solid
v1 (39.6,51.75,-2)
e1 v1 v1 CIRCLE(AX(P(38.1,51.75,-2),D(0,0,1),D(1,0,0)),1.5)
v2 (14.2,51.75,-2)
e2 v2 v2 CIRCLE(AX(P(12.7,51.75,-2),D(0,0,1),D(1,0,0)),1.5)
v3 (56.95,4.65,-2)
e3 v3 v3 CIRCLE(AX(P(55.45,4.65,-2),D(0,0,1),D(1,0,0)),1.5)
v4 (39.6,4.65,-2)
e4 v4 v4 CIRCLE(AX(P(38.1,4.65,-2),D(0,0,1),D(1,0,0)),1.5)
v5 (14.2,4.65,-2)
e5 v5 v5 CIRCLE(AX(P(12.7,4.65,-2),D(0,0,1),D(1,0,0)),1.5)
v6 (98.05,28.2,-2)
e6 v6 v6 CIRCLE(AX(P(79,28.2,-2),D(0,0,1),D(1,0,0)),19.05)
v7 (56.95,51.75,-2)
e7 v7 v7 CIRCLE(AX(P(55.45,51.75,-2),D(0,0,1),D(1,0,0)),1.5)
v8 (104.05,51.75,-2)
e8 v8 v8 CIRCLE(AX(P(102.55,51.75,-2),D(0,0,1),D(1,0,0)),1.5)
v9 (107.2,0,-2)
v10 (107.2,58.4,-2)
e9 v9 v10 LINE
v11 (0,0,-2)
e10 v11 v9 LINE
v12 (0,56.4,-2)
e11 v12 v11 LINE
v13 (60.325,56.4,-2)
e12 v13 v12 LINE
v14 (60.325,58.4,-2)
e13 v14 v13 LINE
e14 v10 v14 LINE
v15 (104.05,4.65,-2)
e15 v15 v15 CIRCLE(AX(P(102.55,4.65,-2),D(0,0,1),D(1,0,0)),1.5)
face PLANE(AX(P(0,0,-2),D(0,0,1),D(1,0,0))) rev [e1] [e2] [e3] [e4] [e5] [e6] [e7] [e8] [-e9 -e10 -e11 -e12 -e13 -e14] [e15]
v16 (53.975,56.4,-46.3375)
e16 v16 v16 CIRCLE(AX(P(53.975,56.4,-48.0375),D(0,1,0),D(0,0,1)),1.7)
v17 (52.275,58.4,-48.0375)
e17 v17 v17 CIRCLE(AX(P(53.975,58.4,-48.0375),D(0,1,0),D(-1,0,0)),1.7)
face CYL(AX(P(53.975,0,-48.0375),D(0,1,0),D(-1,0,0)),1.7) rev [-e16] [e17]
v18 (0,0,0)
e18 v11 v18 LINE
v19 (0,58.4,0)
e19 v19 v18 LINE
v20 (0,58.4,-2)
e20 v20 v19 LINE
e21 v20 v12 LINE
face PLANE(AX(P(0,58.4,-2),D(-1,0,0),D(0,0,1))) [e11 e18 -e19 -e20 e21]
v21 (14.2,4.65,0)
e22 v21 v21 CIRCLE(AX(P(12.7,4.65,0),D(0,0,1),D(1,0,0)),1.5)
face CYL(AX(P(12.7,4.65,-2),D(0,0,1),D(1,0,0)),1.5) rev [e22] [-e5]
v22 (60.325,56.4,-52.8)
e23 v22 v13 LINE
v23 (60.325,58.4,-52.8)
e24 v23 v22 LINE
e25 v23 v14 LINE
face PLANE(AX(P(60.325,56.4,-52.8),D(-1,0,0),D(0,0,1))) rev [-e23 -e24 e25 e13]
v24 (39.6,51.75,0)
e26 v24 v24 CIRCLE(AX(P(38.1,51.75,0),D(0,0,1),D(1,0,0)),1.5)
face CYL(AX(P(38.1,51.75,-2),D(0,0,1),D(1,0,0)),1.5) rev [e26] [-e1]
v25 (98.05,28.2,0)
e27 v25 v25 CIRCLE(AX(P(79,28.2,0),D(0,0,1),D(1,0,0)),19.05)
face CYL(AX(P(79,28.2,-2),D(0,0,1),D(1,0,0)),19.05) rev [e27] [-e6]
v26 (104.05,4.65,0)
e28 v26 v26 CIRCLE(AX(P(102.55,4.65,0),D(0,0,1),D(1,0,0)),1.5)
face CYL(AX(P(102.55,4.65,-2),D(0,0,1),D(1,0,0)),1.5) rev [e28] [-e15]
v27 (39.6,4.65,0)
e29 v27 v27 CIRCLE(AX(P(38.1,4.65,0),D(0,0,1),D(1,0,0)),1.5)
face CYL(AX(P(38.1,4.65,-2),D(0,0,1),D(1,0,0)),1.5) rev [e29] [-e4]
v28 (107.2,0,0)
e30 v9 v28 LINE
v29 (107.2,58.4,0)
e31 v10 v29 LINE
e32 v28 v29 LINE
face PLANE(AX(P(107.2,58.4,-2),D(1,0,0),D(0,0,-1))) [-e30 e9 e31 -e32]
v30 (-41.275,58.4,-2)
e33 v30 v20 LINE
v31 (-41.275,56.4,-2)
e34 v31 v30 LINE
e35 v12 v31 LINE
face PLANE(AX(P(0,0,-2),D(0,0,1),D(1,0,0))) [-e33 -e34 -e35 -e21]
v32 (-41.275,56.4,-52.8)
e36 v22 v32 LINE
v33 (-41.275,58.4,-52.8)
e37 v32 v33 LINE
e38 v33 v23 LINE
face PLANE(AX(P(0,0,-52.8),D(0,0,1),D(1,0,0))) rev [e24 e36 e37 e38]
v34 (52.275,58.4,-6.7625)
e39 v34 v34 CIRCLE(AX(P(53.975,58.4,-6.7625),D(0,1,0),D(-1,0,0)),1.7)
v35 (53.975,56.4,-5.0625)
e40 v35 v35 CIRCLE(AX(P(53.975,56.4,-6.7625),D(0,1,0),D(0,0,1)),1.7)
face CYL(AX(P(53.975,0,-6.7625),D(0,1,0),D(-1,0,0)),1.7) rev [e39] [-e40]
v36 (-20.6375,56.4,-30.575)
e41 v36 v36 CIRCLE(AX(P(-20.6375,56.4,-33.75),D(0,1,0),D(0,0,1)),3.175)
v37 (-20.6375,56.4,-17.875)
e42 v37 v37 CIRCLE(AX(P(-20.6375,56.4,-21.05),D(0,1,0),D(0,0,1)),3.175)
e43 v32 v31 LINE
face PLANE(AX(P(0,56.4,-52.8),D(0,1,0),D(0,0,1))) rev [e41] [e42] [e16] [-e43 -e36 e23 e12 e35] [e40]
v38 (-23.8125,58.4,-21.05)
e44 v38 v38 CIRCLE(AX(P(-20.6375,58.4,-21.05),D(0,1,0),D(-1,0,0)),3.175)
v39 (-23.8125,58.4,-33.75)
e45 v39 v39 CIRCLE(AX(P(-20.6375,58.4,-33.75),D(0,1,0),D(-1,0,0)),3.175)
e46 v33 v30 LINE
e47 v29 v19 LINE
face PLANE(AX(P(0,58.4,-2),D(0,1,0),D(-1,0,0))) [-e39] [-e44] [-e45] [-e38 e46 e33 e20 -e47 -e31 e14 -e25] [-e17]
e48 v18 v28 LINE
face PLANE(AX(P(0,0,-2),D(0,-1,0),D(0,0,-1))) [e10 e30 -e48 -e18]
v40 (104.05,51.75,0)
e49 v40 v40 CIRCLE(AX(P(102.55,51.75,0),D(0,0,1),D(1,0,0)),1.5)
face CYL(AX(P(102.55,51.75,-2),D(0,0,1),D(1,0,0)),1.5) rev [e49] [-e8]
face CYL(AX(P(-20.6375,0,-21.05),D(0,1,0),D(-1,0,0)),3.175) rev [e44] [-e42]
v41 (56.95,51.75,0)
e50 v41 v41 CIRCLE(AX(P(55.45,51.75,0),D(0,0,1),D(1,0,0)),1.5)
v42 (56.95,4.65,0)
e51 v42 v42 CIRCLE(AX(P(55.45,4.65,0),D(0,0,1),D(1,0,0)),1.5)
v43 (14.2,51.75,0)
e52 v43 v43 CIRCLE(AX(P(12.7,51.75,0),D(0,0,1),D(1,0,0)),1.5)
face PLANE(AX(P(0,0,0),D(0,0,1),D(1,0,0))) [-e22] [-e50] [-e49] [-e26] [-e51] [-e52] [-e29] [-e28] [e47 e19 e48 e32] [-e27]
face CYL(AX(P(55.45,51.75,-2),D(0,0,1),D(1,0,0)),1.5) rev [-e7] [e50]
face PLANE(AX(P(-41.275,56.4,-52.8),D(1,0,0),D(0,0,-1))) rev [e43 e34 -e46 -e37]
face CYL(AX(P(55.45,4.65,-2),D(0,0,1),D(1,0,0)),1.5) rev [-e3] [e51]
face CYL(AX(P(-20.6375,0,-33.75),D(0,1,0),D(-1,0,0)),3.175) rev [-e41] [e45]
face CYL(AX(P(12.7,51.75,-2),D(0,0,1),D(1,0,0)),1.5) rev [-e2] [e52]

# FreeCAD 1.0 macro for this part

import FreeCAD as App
import Part
import Sketcher

doc = App.newDocument("Part")
body = doc.addObject("PartDesign::Body", "Body")

# Sketch on XY plane
sketch1 = doc.addObject("Sketcher::SketchObject", "Sketch")
body.addObject(sketch1)
sketch1.AttachmentSupport = (doc.XY_Plane, [""])
sketch1.MapMode = "FlatFace"
sketch1.addGeometry([
    Part.LineSegment(App.Vector(0, 58.4, 0), App.Vector(0, 0, 0)),  # 0
    Part.LineSegment(App.Vector(0, 0, 0), App.Vector(107.2, 0, 0)),  # 1
    Part.LineSegment(App.Vector(107.2, 0, 0), App.Vector(107.2, 58.4, 0)),  # 2
    Part.LineSegment(App.Vector(107.2, 58.4, 0), App.Vector(0, 58.4, 0)),  # 3
    Part.Circle(App.Vector(12.7, 4.65, 0), App.Vector(0, 0, 1), 1.5),  # 4
    Part.Circle(App.Vector(38.1, 4.65, 0), App.Vector(0, 0, 1), 1.5),  # 5
    Part.Circle(App.Vector(55.45, 4.65, 0), App.Vector(0, 0, 1), 1.5),  # 6
    Part.Circle(App.Vector(102.55, 4.65, 0), App.Vector(0, 0, 1), 1.5),  # 7
    Part.Circle(App.Vector(12.7, 51.75, 0), App.Vector(0, 0, 1), 1.5),  # 8
    Part.Circle(App.Vector(38.1, 51.75, 0), App.Vector(0, 0, 1), 1.5),  # 9
    Part.Circle(App.Vector(55.45, 51.75, 0), App.Vector(0, 0, 1), 1.5),  # 10
    Part.Circle(App.Vector(79, 28.2, 0), App.Vector(0, 0, 1), 19.05),  # 11
    Part.Circle(App.Vector(102.55, 51.75, 0), App.Vector(0, 0, 1), 1.5),  # 12
], False)
sketch1.addConstraint([
    Sketcher.Constraint("Coincident", 0, 2, 1, 1),
    Sketcher.Constraint("Coincident", 1, 2, 2, 1),
    Sketcher.Constraint("Coincident", 2, 2, 3, 1),
    Sketcher.Constraint("Coincident", 3, 2, 0, 1),
    Sketcher.Constraint("Vertical", 0),
    Sketcher.Constraint("Horizontal", 1),
    Sketcher.Constraint("Vertical", 2),
    Sketcher.Constraint("Horizontal", 3),
    Sketcher.Constraint("Coincident", 0, 2, -1, 1),
    Sketcher.Constraint("Equal", 4, 5),
    Sketcher.Constraint("Equal", 5, 6),
    Sketcher.Constraint("Equal", 6, 7),
    Sketcher.Constraint("Equal", 7, 8),
    Sketcher.Constraint("Equal", 8, 9),
    Sketcher.Constraint("Equal", 9, 10),
    Sketcher.Constraint("Equal", 10, 12),
    Sketcher.Constraint("Horizontal", 4, 3, 5, 3),
    Sketcher.Constraint("Horizontal", 5, 3, 6, 3),
    Sketcher.Constraint("Horizontal", 6, 3, 7, 3),
    Sketcher.Constraint("Horizontal", 8, 3, 9, 3),
    Sketcher.Constraint("Horizontal", 9, 3, 10, 3),
    Sketcher.Constraint("Horizontal", 10, 3, 12, 3),
    Sketcher.Constraint("Vertical", 4, 3, 8, 3),
    Sketcher.Constraint("Vertical", 5, 3, 9, 3),
    Sketcher.Constraint("Vertical", 6, 3, 10, 3),
    Sketcher.Constraint("Vertical", 7, 3, 12, 3),
    Sketcher.Constraint("Diameter", 4, 3.0),
    Sketcher.Constraint("Diameter", 11, 38.1),
    Sketcher.Constraint("DistanceX", 1, 1, 1, 2, 107.2),
    Sketcher.Constraint("DistanceY", 0, 2, 0, 1, 58.4),
    Sketcher.Constraint("DistanceX", -1, 1, 11, 3, 79.0),
    Sketcher.Constraint("DistanceX", -1, 1, 4, 3, 12.7),
    Sketcher.Constraint("DistanceX", -1, 1, 5, 3, 38.1),
    Sketcher.Constraint("DistanceY", -1, 1, 11, 3, 28.2),
    Sketcher.Constraint("DistanceX", 6, 3, 7, 3, 47.1),
    Sketcher.Constraint("DistanceY", 4, 3, 8, 3, 47.1),
    Sketcher.Constraint("DistanceY", -1, 1, 4, 3, 4.65),
    Sketcher.Constraint("DistanceX", -1, 1, 6, 3, 55.45),
])
pad1 = doc.addObject("PartDesign::Pad", "Pad")
body.addObject(pad1)
pad1.Profile = sketch1
pad1.Length = 2
pad1.Reversed = True

# Sketch on XY plane
sketch2 = doc.addObject("Sketcher::SketchObject", "Sketch001")
body.addObject(sketch2)
sketch2.AttachmentSupport = (doc.XY_Plane, [""])
sketch2.MapMode = "FlatFace"
sketch2.AttachmentOffset = App.Placement(App.Vector(0, 0, -2), App.Rotation())
sketch2.addGeometry([
    Part.LineSegment(App.Vector(-41.275, 56.4, 0), App.Vector(-41.275, 58.4, 0)),
    Part.LineSegment(App.Vector(-41.275, 58.4, 0), App.Vector(60.325, 58.4, 0)),
    Part.LineSegment(App.Vector(60.325, 58.4, 0), App.Vector(60.325, 56.4, 0)),
    Part.LineSegment(App.Vector(60.325, 56.4, 0), App.Vector(-41.275, 56.4, 0)),
], False)
sketch2.addConstraint([
    Sketcher.Constraint("Coincident", 0, 2, 1, 1),
    Sketcher.Constraint("Coincident", 1, 2, 2, 1),
    Sketcher.Constraint("Coincident", 2, 2, 3, 1),
    Sketcher.Constraint("Coincident", 3, 2, 0, 1),
    Sketcher.Constraint("Vertical", 0),
    Sketcher.Constraint("Horizontal", 1),
    Sketcher.Constraint("Vertical", 2),
    Sketcher.Constraint("Horizontal", 3),
    Sketcher.Constraint("DistanceY", 0, 1, 0, 2, 2.0),
    Sketcher.Constraint("DistanceX", 1, 1, 1, 2, 101.6),
    Sketcher.Constraint("DistanceY", -1, 1, 0, 2, 58.4),
    Sketcher.Constraint("DistanceX", 0, 2, -1, 1, 41.275),
])
pad2 = doc.addObject("PartDesign::Pad", "Pad001")
body.addObject(pad2)
pad2.Profile = sketch2
pad2.Length = 50.8
pad2.Reversed = True

# Sketch on XZ plane
sketch3 = doc.addObject("Sketcher::SketchObject", "Sketch002")
body.addObject(sketch3)
sketch3.AttachmentSupport = (doc.XZ_Plane, [""])
sketch3.MapMode = "FlatFace"
sketch3.AttachmentOffset = App.Placement(App.Vector(0, 0, -58.4), App.Rotation())
sketch3.addGeometry([
    Part.Circle(App.Vector(53.975, -48.0375, 0), App.Vector(0, 0, 1), 1.7),
    Part.Circle(App.Vector(53.975, -6.7625, 0), App.Vector(0, 0, 1), 1.7),
    Part.Circle(App.Vector(-20.6375, -33.75, 0), App.Vector(0, 0, 1), 3.175),
    Part.Circle(App.Vector(-20.6375, -21.05, 0), App.Vector(0, 0, 1), 3.175),
], False)
sketch3.addConstraint([
    Sketcher.Constraint("Equal", 0, 1),
    Sketcher.Constraint("Equal", 2, 3),
    Sketcher.Constraint("Vertical", 0, 3, 1, 3),
    Sketcher.Constraint("Vertical", 2, 3, 3, 3),
    Sketcher.Constraint("Diameter", 0, 3.4),
    Sketcher.Constraint("Diameter", 2, 6.35),
    Sketcher.Constraint("DistanceY", 2, 3, 3, 3, 12.7),
    Sketcher.Constraint("DistanceY", 2, 3, -1, 1, 33.75),
    Sketcher.Constraint("DistanceX", -1, 1, 0, 3, 53.975),
    Sketcher.Constraint("DistanceY", 0, 3, 1, 3, 41.275),
    Sketcher.Constraint("DistanceY", 0, 3, -1, 1, 48.0375),
    Sketcher.Constraint("DistanceX", 2, 3, -1, 1, 20.6375),
])
pocket1 = doc.addObject("PartDesign::Pocket", "Pocket")
body.addObject(pocket1)
pocket1.Profile = sketch3
pocket1.Type = "ThroughAll"
pocket1.Reversed = True

doc.recompute()
